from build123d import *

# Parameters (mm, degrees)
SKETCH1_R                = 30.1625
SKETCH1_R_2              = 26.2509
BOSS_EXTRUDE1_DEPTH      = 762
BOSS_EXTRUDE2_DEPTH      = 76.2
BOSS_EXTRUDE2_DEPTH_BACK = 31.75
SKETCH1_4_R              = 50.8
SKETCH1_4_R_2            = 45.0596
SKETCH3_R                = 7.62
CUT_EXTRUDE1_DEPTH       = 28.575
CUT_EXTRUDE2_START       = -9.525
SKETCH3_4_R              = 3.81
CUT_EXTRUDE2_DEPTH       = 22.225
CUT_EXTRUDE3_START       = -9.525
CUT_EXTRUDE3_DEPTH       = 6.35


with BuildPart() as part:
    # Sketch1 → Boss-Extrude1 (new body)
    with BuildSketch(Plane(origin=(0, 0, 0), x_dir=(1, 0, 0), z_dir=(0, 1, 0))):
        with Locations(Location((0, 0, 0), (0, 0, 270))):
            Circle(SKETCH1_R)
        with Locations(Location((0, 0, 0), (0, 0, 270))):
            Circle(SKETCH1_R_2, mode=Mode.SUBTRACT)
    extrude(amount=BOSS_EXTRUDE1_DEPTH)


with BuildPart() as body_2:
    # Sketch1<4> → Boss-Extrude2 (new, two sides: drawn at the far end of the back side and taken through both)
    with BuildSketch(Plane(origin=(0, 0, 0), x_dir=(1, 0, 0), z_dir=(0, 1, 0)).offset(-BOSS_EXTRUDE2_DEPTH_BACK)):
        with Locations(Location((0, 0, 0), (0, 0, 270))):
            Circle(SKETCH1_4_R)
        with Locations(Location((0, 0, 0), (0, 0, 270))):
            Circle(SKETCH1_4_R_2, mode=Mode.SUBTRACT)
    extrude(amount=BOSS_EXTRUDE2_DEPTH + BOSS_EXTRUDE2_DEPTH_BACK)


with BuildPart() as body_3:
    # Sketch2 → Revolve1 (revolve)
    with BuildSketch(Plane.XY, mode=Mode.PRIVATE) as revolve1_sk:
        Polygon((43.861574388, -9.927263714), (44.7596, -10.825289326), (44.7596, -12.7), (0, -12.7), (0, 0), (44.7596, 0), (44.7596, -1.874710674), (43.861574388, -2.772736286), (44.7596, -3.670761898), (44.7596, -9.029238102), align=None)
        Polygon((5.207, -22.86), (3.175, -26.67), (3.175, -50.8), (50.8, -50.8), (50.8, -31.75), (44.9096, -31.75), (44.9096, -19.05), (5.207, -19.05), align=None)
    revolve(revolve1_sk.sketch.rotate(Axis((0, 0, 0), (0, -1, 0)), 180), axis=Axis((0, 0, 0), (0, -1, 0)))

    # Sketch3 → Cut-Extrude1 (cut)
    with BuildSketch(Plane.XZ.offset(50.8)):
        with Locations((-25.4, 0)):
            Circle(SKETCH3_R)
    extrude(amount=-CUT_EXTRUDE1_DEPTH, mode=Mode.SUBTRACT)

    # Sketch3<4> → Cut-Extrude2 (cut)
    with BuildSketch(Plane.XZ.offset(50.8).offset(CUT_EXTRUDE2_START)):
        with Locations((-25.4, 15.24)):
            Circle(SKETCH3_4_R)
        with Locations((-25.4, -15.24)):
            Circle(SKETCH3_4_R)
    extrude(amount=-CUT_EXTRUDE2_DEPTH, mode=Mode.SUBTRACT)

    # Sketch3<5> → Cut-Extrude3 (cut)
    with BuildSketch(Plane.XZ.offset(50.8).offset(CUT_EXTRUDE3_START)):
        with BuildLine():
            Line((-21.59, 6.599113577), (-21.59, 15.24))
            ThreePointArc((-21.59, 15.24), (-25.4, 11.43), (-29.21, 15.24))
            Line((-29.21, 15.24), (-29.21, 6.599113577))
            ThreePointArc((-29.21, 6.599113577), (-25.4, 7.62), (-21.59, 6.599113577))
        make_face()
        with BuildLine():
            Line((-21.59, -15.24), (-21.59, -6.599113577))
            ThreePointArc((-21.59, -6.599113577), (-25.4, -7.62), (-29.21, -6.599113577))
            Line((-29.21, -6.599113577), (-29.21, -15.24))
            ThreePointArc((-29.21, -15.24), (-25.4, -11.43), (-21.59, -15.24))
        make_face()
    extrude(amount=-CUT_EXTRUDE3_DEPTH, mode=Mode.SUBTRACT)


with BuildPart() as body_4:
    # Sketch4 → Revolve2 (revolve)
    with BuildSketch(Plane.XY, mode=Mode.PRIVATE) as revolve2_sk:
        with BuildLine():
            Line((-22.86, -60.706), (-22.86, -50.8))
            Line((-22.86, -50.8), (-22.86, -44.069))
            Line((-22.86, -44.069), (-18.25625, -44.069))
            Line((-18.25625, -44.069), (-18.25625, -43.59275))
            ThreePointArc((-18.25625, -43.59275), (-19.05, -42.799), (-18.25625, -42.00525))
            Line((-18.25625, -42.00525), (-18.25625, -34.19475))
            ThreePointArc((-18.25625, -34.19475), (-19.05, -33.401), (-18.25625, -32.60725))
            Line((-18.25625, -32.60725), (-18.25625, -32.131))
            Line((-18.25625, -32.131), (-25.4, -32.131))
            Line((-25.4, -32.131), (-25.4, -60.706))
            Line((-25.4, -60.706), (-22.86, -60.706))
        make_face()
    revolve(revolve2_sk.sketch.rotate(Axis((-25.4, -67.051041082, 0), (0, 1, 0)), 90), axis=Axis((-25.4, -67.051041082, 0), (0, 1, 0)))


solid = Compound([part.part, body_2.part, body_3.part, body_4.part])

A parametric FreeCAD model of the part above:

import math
import FreeCAD as App
import Part
import Sketcher
Q = App.Units.Quantity


def add_polygon(sketch, points):
    """Adds a closed chain of lines whose ends are joined by coincident constraints."""
    first, n = sketch.GeometryCount, len(points)
    for a, b in zip(points, points[1:] + points[:1]):
        sketch.addGeometry(Part.LineSegment(App.Vector(*a, 0), App.Vector(*b, 0)), False)
    for i in range(n):
        sketch.addConstraint(Sketcher.Constraint("Coincident", first + i, 2, first + (i + 1) % n, 1))

doc = App.newDocument("Part")
body = doc.addObject("PartDesign::Body", "Body")

# Sketch on XZ plane
sketch1 = body.newObject("Sketcher::SketchObject", "Sketch")
sketch1.AttachmentSupport = (doc.getObject("XZ_Plane"), [""])
sketch1.MapMode = "FlatFace"
sketch1.addGeometry(Part.Circle(App.Vector(0, 0, 0), App.Vector(0, 0, 1), 30.1625), False)
sketch1.addGeometry(Part.Circle(App.Vector(0, 0, 0), App.Vector(0, 0, 1), 26.2509), False)
sketch1.addConstraint(Sketcher.Constraint("Coincident", 0, 3, -1, 1))
sketch1.addConstraint(Sketcher.Constraint("Coincident", 1, 3, -1, 1))
sketch1.addConstraint(Sketcher.Constraint("Diameter", 0, Q("2.375 in")))
sketch1.addConstraint(Sketcher.Constraint("Diameter", 1, Q("2.067 in")))
pad1 = body.newObject("PartDesign::Pad", "Pad")
pad1.Profile = sketch1
pad1.Length = Q("30 in")
pad1.Reversed = True
body2 = doc.addObject("PartDesign::Body", "Body001")

# Sketch on XZ plane
sketch2 = body2.newObject("Sketcher::SketchObject", "Sketch001")
sketch2.AttachmentSupport = (doc.getObject("XZ_Plane001"), [""])
sketch2.MapMode = "FlatFace"
sketch2.addGeometry(Part.Circle(App.Vector(0, 0, 0), App.Vector(0, 0, 1), 50.8), False)
sketch2.addGeometry(Part.Circle(App.Vector(0, 0, 0), App.Vector(0, 0, 1), 45.0596), False)
sketch2.addConstraint(Sketcher.Constraint("Coincident", 0, 3, -1, 1))
sketch2.addConstraint(Sketcher.Constraint("Coincident", 1, 3, -1, 1))
sketch2.addConstraint(Sketcher.Constraint("Diameter", 0, Q("4 in")))
sketch2.addConstraint(Sketcher.Constraint("Diameter", 1, Q("3.548 in")))
pad2 = body2.newObject("PartDesign::Pad", "Pad001")
pad2.Profile = sketch2
pad2.Type = "TwoLengths"
pad2.Length = Q("3 in")
pad2.Length2 = Q("1.25 in")
pad2.Reversed = True
body3 = doc.addObject("PartDesign::Body", "Body002")
body3.AllowCompound = True

# Sketch on XY plane
sketch3 = body3.newObject("Sketcher::SketchObject", "Sketch002")
sketch3.AttachmentSupport = (doc.getObject("XY_Plane002"), [""])
sketch3.MapMode = "FlatFace"
add_polygon(sketch3, [(44.7596, -10.825289), (43.861574, -9.927264), (44.7596, -9.029238), (44.7596, -3.670762), (43.861574, -2.772736), (44.7596, -1.874711), (44.7596, 0), (0, 0), (0, -12.7), (44.7596, -12.7)])  # lines 0-9
add_polygon(sketch3, [(5.207, -22.86), (3.175, -26.67), (3.175, -50.8), (50.8, -50.8), (50.8, -31.75), (44.9096, -31.75), (44.9096, -19.05), (5.207, -19.05)])  # lines 10-17
sketch3.addConstraint(Sketcher.Constraint("Vertical", 2))
sketch3.addConstraint(Sketcher.Constraint("Vertical", 5))
sketch3.addConstraint(Sketcher.Constraint("Horizontal", 6))
sketch3.addConstraint(Sketcher.Constraint("Vertical", 7))
sketch3.addConstraint(Sketcher.Constraint("Horizontal", 8))
sketch3.addConstraint(Sketcher.Constraint("Vertical", 9))
sketch3.addConstraint(Sketcher.Constraint("Vertical", 11))
sketch3.addConstraint(Sketcher.Constraint("Horizontal", 12))
sketch3.addConstraint(Sketcher.Constraint("Vertical", 13))
sketch3.addConstraint(Sketcher.Constraint("Horizontal", 14))
sketch3.addConstraint(Sketcher.Constraint("Vertical", 15))
sketch3.addConstraint(Sketcher.Constraint("Horizontal", 16))
sketch3.addConstraint(Sketcher.Constraint("Vertical", 17))
sketch3.addConstraint(Sketcher.Constraint("Coincident", 6, 2, -1, 1))
sketch3.addConstraint(Sketcher.Constraint("Perpendicular", 0, 1))
sketch3.addConstraint(Sketcher.Constraint("Perpendicular", 1, 3))
sketch3.addConstraint(Sketcher.Constraint("Perpendicular", 3, 4))
sketch3.addConstraint(Sketcher.Constraint("Vertical", 0, 2, 3, 2))
sketch3.addConstraint(Sketcher.Constraint("Vertical", 2, 2, 4, 2))
sketch3.addConstraint(Sketcher.Constraint("Vertical", 5, 2, 8, 2))
sketch3.addConstraint(Sketcher.Constraint("Equal", 5, 9))
sketch3.addConstraint(Sketcher.Constraint("Equal", 7, 15))
sketch3.addConstraint(Sketcher.Constraint("Equal", 0, 1))
sketch3.addConstraint(Sketcher.Constraint("DistanceY", 7, 2, 7, 1, Q("0.5 in")))
sketch3.addConstraint(Sketcher.Constraint("DistanceY", 11, 2, -1, 1, Q("2 in")))
sketch3.addConstraint(Sketcher.Constraint("DistanceX", -1, 1, 12, 2, Q("2 in")))
sketch3.addConstraint(Sketcher.Constraint("DistanceY", 11, 2, 11, 1, Q("0.95 in")))
sketch3.addConstraint(Sketcher.Constraint("DistanceY", 13, 1, 13, 2, Q("0.75 in")))
sketch3.addConstraint(Sketcher.Constraint("DistanceY", 17, 2, 17, 1, Q("0.15 in")))
sketch3.addConstraint(Sketcher.Constraint("Distance", 0, Q("0.05 in")))
sketch3.addConstraint(Sketcher.Constraint("Distance", 10, Q("0.17 in")))
sketch3.addConstraint(Sketcher.Constraint("DistanceX", 12, 1, 12, 2, Q("1.875 in")))
sketch3.addConstraint(Sketcher.Constraint("DistanceX", 6, 2, 6, 1, 44.7596))
sketch3.addConstraint(Sketcher.Constraint("DistanceX", 14, 2, 14, 1, 5.8904))
sketch3.addConstraint(Sketcher.Constraint("DistanceY", 5, 1, 5, 2, 1.874711))
revolution = body3.newObject("PartDesign::Revolution", "Revolution")
revolution.Profile = sketch3
revolution.ReferenceAxis = (sketch3, ["V_Axis"])
revolution.Angle = 360

# Sketch on XZ plane
sketch4 = body3.newObject("Sketcher::SketchObject", "Sketch003")
sketch4.AttachmentSupport = (doc.getObject("XZ_Plane002"), [""])
sketch4.MapMode = "FlatFace"
sketch4.AttachmentOffset = App.Placement(App.Vector(0, 0, 2 * 25.4), App.Rotation())
sketch4.addGeometry(Part.Circle(App.Vector(-25.4, 0, 0), App.Vector(0, 0, 1), 7.62), False)
sketch4.addConstraint(Sketcher.Constraint("PointOnObject", 0, 3, -1))
sketch4.addConstraint(Sketcher.Constraint("Diameter", 0, Q("0.6 in")))
sketch4.addConstraint(Sketcher.Constraint("DistanceX", 0, 3, -1, 1, Q("1 in")))
pocket1 = body3.newObject("PartDesign::Pocket", "Pocket")
pocket1.Profile = sketch4
pocket1.Length = Q("1.125 in")

# Sketch on XZ plane
sketch5 = body3.newObject("Sketcher::SketchObject", "Sketch004")
sketch5.AttachmentSupport = (doc.getObject("XZ_Plane002"), [""])
sketch5.MapMode = "FlatFace"
sketch5.AttachmentOffset = App.Placement(App.Vector(0, 0, 1.625 * 25.4), App.Rotation())
sketch5.addGeometry(Part.Circle(App.Vector(-25.4, 15.24, 0), App.Vector(0, 0, 1), 3.81), False)
sketch5.addGeometry(Part.Circle(App.Vector(-25.4, -15.24, 0), App.Vector(0, 0, 1), 3.81), False)
sketch5.addConstraint(Sketcher.Constraint("Equal", 0, 1))
sketch5.addConstraint(Sketcher.Constraint("Symmetric", 0, 3, 1, 3, -1))
sketch5.addConstraint(Sketcher.Constraint("Diameter", 0, Q("0.3 in")))
sketch5.addConstraint(Sketcher.Constraint("DistanceX", 0, 3, -1, 1, Q("1 in")))
sketch5.addConstraint(Sketcher.Constraint("DistanceY", -1, 1, 0, 3, Q("0.6 in")))
pocket2 = body3.newObject("PartDesign::Pocket", "Pocket001")
pocket2.Profile = sketch5
pocket2.Length = Q("0.875 in")

# Sketch on XZ plane
sketch6 = body3.newObject("Sketcher::SketchObject", "Sketch005")
sketch6.AttachmentSupport = (doc.getObject("XZ_Plane002"), [""])
sketch6.MapMode = "FlatFace"
sketch6.AttachmentOffset = App.Placement(App.Vector(0, 0, 1.625 * 25.4), App.Rotation())
sketch6.addGeometry(Part.LineSegment(App.Vector(-21.59, 6.599114, 0), App.Vector(-21.59, 15.24, 0)), False)
sketch6.addGeometry(Part.ArcOfCircle(Part.Circle(App.Vector(-25.4, 15.24, 0), App.Vector(0, 0, 1), 3.81), math.radians(180), math.radians(360)), False)
sketch6.addGeometry(Part.LineSegment(App.Vector(-29.21, 15.24, 0), App.Vector(-29.21, 6.599114, 0)), False)
sketch6.addGeometry(Part.ArcOfCircle(Part.Circle(App.Vector(-25.4, 0, 0), App.Vector(0, 0, 1), 7.62), math.radians(60), math.radians(120)), False)
sketch6.addGeometry(Part.LineSegment(App.Vector(-21.59, -15.24, 0), App.Vector(-21.59, -6.599114, 0)), False)
sketch6.addGeometry(Part.ArcOfCircle(Part.Circle(App.Vector(-25.4, 0, 0), App.Vector(0, 0, 1), 7.62), math.radians(-120), math.radians(-60)), False)
sketch6.addGeometry(Part.LineSegment(App.Vector(-29.21, -6.599114, 0), App.Vector(-29.21, -15.24, 0)), False)
sketch6.addGeometry(Part.ArcOfCircle(Part.Circle(App.Vector(-25.4, -15.24, 0), App.Vector(0, 0, 1), 3.81), math.radians(0), math.radians(180)), False)
sketch6.addConstraint(Sketcher.Constraint("Tangent", 0, 2, 1, 2))
sketch6.addConstraint(Sketcher.Constraint("Tangent", 1, 1, 2, 1))
sketch6.addConstraint(Sketcher.Constraint("Coincident", 2, 2, 3, 2))
sketch6.addConstraint(Sketcher.Constraint("Coincident", 3, 1, 0, 1))
sketch6.addConstraint(Sketcher.Constraint("Coincident", 4, 2, 5, 2))
sketch6.addConstraint(Sketcher.Constraint("Coincident", 5, 1, 6, 1))
sketch6.addConstraint(Sketcher.Constraint("Tangent", 6, 2, 7, 2))
sketch6.addConstraint(Sketcher.Constraint("Tangent", 7, 1, 4, 1))
sketch6.addConstraint(Sketcher.Constraint("Vertical", 0))
sketch6.addConstraint(Sketcher.Constraint("Vertical", 2))
sketch6.addConstraint(Sketcher.Constraint("Vertical", 4))
sketch6.addConstraint(Sketcher.Constraint("Vertical", 6))
sketch6.addConstraint(Sketcher.Constraint("Coincident", 5, 3, 3, 3))
sketch6.addConstraint(Sketcher.Constraint("Equal", 3, 5))
sketch6.addConstraint(Sketcher.Constraint("Equal", 1, 7))
sketch6.addConstraint(Sketcher.Constraint("Symmetric", 1, 3, 7, 3, -1))
sketch6.addConstraint(Sketcher.Constraint("PointOnObject", 3, 3, -1))
sketch6.addConstraint(Sketcher.Constraint("Horizontal", 2, 2, 3, 1))
sketch6.addConstraint(Sketcher.Constraint("Radius", 3, Q("0.3 in")))
sketch6.addConstraint(Sketcher.Constraint("Radius", 1, Q("0.15 in")))
sketch6.addConstraint(Sketcher.Constraint("DistanceX", 1, 3, -1, 1, Q("1 in")))
sketch6.addConstraint(Sketcher.Constraint("DistanceY", -1, 1, 1, 3, Q("0.6 in")))
pocket3 = body3.newObject("PartDesign::Pocket", "Pocket002")
pocket3.Profile = sketch6
pocket3.Length = Q("0.25 in")
body4 = doc.addObject("PartDesign::Body", "Body003")

# Sketch on XY plane
sketch7 = body4.newObject("Sketcher::SketchObject", "Sketch006")
sketch7.AttachmentSupport = (doc.getObject("XY_Plane003"), [""])
sketch7.MapMode = "FlatFace"
sketch7.addGeometry(Part.LineSegment(App.Vector(-22.86, -60.706, 0), App.Vector(-22.86, -44.069, 0)), False)
sketch7.addGeometry(Part.LineSegment(App.Vector(-22.86, -44.069, 0), App.Vector(-18.25625, -44.069, 0)), False)
sketch7.addGeometry(Part.LineSegment(App.Vector(-18.25625, -44.069, 0), App.Vector(-18.25625, -43.59275, 0)), False)
sketch7.addGeometry(Part.ArcOfCircle(Part.Circle(App.Vector(-18.25625, -42.799, 0), App.Vector(0, 0, 1), 0.79375), math.radians(90), math.radians(270)), False)
sketch7.addGeometry(Part.LineSegment(App.Vector(-18.25625, -42.00525, 0), App.Vector(-18.25625, -34.19475, 0)), False)
sketch7.addGeometry(Part.ArcOfCircle(Part.Circle(App.Vector(-18.25625, -33.401, 0), App.Vector(0, 0, 1), 0.79375), math.radians(90), math.radians(270)), False)
sketch7.addGeometry(Part.LineSegment(App.Vector(-18.25625, -32.60725, 0), App.Vector(-18.25625, -32.131, 0)), False)
sketch7.addGeometry(Part.LineSegment(App.Vector(-18.25625, -32.131, 0), App.Vector(-25.4, -32.131, 0)), False)
sketch7.addGeometry(Part.LineSegment(App.Vector(-25.4, -32.131, 0), App.Vector(-25.4, -60.706, 0)), False)
sketch7.addGeometry(Part.LineSegment(App.Vector(-25.4, -60.706, 0), App.Vector(-22.86, -60.706, 0)), False)
sketch7.addGeometry(Part.LineSegment(App.Vector(-25.4, -60.706, 0), App.Vector(-25.4, -32.131, 0)), True)  # axis
sketch7.addConstraint(Sketcher.Constraint("Coincident", 0, 2, 1, 1))
sketch7.addConstraint(Sketcher.Constraint("Coincident", 1, 2, 2, 1))
sketch7.addConstraint(Sketcher.Constraint("Coincident", 2, 2, 3, 2))
sketch7.addConstraint(Sketcher.Constraint("Coincident", 3, 1, 4, 1))
sketch7.addConstraint(Sketcher.Constraint("Coincident", 4, 2, 5, 2))
sketch7.addConstraint(Sketcher.Constraint("Coincident", 5, 1, 6, 1))
sketch7.addConstraint(Sketcher.Constraint("Coincident", 6, 2, 7, 1))
sketch7.addConstraint(Sketcher.Constraint("Coincident", 7, 2, 8, 1))
sketch7.addConstraint(Sketcher.Constraint("Coincident", 8, 2, 9, 1))
sketch7.addConstraint(Sketcher.Constraint("Coincident", 9, 2, 0, 1))
sketch7.addConstraint(Sketcher.Constraint("Vertical", 0))
sketch7.addConstraint(Sketcher.Constraint("Horizontal", 1))
sketch7.addConstraint(Sketcher.Constraint("Vertical", 2))
sketch7.addConstraint(Sketcher.Constraint("Vertical", 4))
sketch7.addConstraint(Sketcher.Constraint("Vertical", 6))
sketch7.addConstraint(Sketcher.Constraint("Horizontal", 7))
sketch7.addConstraint(Sketcher.Constraint("Vertical", 8))
sketch7.addConstraint(Sketcher.Constraint("Horizontal", 9))
sketch7.addConstraint(Sketcher.Constraint("Vertical", 10))
sketch7.addConstraint(Sketcher.Constraint("Coincident", 10, 1, 8, 2))
sketch7.addConstraint(Sketcher.Constraint("Equal", 3, 5))
sketch7.addConstraint(Sketcher.Constraint("Horizontal", 6, 2, 10, 2))
sketch7.addConstraint(Sketcher.Constraint("Vertical", 3, 3, 5, 3))
sketch7.addConstraint(Sketcher.Constraint("Vertical", 5, 3, 1, 2))
sketch7.addConstraint(Sketcher.Constraint("Vertical", 2, 2, 3, 1))
sketch7.addConstraint(Sketcher.Constraint("Vertical", 4, 2, 5, 1))
sketch7.addConstraint(Sketcher.Constraint("Equal", 2, 6))
sketch7.addConstraint(Sketcher.Constraint("DistanceX", 9, 1, 9, 2, Q("0.1 in")))
sketch7.addConstraint(Sketcher.Constraint("DistanceX", 7, 2, -1, 1, Q("1 in")))
sketch7.addConstraint(Sketcher.Constraint("Radius", 3, Q("0.03125 in")))
sketch7.addConstraint(Sketcher.Constraint("DistanceX", 7, 2, 7, 1, Q("0.28125 in")))
sketch7.addConstraint(Sketcher.Constraint("DistanceY", 0, 1, 0, 2, Q("0.655 in")))
sketch7.addConstraint(Sketcher.Constraint("DistanceY", 8, 2, 8, 1, Q("1.125 in")))
sketch7.addConstraint(Sketcher.Constraint("DistanceY", 8, 2, -1, 1, Q("2.39 in")))
sketch7.addConstraint(Sketcher.Constraint("DistanceY", 3, 3, 5, 3, Q("0.37 in")))
revolution2 = body4.newObject("PartDesign::Revolution", "Revolution001")
revolution2.Profile = sketch7
revolution2.ReferenceAxis = (sketch7, ["Axis0"])
revolution2.Angle = 360

doc.recompute()
